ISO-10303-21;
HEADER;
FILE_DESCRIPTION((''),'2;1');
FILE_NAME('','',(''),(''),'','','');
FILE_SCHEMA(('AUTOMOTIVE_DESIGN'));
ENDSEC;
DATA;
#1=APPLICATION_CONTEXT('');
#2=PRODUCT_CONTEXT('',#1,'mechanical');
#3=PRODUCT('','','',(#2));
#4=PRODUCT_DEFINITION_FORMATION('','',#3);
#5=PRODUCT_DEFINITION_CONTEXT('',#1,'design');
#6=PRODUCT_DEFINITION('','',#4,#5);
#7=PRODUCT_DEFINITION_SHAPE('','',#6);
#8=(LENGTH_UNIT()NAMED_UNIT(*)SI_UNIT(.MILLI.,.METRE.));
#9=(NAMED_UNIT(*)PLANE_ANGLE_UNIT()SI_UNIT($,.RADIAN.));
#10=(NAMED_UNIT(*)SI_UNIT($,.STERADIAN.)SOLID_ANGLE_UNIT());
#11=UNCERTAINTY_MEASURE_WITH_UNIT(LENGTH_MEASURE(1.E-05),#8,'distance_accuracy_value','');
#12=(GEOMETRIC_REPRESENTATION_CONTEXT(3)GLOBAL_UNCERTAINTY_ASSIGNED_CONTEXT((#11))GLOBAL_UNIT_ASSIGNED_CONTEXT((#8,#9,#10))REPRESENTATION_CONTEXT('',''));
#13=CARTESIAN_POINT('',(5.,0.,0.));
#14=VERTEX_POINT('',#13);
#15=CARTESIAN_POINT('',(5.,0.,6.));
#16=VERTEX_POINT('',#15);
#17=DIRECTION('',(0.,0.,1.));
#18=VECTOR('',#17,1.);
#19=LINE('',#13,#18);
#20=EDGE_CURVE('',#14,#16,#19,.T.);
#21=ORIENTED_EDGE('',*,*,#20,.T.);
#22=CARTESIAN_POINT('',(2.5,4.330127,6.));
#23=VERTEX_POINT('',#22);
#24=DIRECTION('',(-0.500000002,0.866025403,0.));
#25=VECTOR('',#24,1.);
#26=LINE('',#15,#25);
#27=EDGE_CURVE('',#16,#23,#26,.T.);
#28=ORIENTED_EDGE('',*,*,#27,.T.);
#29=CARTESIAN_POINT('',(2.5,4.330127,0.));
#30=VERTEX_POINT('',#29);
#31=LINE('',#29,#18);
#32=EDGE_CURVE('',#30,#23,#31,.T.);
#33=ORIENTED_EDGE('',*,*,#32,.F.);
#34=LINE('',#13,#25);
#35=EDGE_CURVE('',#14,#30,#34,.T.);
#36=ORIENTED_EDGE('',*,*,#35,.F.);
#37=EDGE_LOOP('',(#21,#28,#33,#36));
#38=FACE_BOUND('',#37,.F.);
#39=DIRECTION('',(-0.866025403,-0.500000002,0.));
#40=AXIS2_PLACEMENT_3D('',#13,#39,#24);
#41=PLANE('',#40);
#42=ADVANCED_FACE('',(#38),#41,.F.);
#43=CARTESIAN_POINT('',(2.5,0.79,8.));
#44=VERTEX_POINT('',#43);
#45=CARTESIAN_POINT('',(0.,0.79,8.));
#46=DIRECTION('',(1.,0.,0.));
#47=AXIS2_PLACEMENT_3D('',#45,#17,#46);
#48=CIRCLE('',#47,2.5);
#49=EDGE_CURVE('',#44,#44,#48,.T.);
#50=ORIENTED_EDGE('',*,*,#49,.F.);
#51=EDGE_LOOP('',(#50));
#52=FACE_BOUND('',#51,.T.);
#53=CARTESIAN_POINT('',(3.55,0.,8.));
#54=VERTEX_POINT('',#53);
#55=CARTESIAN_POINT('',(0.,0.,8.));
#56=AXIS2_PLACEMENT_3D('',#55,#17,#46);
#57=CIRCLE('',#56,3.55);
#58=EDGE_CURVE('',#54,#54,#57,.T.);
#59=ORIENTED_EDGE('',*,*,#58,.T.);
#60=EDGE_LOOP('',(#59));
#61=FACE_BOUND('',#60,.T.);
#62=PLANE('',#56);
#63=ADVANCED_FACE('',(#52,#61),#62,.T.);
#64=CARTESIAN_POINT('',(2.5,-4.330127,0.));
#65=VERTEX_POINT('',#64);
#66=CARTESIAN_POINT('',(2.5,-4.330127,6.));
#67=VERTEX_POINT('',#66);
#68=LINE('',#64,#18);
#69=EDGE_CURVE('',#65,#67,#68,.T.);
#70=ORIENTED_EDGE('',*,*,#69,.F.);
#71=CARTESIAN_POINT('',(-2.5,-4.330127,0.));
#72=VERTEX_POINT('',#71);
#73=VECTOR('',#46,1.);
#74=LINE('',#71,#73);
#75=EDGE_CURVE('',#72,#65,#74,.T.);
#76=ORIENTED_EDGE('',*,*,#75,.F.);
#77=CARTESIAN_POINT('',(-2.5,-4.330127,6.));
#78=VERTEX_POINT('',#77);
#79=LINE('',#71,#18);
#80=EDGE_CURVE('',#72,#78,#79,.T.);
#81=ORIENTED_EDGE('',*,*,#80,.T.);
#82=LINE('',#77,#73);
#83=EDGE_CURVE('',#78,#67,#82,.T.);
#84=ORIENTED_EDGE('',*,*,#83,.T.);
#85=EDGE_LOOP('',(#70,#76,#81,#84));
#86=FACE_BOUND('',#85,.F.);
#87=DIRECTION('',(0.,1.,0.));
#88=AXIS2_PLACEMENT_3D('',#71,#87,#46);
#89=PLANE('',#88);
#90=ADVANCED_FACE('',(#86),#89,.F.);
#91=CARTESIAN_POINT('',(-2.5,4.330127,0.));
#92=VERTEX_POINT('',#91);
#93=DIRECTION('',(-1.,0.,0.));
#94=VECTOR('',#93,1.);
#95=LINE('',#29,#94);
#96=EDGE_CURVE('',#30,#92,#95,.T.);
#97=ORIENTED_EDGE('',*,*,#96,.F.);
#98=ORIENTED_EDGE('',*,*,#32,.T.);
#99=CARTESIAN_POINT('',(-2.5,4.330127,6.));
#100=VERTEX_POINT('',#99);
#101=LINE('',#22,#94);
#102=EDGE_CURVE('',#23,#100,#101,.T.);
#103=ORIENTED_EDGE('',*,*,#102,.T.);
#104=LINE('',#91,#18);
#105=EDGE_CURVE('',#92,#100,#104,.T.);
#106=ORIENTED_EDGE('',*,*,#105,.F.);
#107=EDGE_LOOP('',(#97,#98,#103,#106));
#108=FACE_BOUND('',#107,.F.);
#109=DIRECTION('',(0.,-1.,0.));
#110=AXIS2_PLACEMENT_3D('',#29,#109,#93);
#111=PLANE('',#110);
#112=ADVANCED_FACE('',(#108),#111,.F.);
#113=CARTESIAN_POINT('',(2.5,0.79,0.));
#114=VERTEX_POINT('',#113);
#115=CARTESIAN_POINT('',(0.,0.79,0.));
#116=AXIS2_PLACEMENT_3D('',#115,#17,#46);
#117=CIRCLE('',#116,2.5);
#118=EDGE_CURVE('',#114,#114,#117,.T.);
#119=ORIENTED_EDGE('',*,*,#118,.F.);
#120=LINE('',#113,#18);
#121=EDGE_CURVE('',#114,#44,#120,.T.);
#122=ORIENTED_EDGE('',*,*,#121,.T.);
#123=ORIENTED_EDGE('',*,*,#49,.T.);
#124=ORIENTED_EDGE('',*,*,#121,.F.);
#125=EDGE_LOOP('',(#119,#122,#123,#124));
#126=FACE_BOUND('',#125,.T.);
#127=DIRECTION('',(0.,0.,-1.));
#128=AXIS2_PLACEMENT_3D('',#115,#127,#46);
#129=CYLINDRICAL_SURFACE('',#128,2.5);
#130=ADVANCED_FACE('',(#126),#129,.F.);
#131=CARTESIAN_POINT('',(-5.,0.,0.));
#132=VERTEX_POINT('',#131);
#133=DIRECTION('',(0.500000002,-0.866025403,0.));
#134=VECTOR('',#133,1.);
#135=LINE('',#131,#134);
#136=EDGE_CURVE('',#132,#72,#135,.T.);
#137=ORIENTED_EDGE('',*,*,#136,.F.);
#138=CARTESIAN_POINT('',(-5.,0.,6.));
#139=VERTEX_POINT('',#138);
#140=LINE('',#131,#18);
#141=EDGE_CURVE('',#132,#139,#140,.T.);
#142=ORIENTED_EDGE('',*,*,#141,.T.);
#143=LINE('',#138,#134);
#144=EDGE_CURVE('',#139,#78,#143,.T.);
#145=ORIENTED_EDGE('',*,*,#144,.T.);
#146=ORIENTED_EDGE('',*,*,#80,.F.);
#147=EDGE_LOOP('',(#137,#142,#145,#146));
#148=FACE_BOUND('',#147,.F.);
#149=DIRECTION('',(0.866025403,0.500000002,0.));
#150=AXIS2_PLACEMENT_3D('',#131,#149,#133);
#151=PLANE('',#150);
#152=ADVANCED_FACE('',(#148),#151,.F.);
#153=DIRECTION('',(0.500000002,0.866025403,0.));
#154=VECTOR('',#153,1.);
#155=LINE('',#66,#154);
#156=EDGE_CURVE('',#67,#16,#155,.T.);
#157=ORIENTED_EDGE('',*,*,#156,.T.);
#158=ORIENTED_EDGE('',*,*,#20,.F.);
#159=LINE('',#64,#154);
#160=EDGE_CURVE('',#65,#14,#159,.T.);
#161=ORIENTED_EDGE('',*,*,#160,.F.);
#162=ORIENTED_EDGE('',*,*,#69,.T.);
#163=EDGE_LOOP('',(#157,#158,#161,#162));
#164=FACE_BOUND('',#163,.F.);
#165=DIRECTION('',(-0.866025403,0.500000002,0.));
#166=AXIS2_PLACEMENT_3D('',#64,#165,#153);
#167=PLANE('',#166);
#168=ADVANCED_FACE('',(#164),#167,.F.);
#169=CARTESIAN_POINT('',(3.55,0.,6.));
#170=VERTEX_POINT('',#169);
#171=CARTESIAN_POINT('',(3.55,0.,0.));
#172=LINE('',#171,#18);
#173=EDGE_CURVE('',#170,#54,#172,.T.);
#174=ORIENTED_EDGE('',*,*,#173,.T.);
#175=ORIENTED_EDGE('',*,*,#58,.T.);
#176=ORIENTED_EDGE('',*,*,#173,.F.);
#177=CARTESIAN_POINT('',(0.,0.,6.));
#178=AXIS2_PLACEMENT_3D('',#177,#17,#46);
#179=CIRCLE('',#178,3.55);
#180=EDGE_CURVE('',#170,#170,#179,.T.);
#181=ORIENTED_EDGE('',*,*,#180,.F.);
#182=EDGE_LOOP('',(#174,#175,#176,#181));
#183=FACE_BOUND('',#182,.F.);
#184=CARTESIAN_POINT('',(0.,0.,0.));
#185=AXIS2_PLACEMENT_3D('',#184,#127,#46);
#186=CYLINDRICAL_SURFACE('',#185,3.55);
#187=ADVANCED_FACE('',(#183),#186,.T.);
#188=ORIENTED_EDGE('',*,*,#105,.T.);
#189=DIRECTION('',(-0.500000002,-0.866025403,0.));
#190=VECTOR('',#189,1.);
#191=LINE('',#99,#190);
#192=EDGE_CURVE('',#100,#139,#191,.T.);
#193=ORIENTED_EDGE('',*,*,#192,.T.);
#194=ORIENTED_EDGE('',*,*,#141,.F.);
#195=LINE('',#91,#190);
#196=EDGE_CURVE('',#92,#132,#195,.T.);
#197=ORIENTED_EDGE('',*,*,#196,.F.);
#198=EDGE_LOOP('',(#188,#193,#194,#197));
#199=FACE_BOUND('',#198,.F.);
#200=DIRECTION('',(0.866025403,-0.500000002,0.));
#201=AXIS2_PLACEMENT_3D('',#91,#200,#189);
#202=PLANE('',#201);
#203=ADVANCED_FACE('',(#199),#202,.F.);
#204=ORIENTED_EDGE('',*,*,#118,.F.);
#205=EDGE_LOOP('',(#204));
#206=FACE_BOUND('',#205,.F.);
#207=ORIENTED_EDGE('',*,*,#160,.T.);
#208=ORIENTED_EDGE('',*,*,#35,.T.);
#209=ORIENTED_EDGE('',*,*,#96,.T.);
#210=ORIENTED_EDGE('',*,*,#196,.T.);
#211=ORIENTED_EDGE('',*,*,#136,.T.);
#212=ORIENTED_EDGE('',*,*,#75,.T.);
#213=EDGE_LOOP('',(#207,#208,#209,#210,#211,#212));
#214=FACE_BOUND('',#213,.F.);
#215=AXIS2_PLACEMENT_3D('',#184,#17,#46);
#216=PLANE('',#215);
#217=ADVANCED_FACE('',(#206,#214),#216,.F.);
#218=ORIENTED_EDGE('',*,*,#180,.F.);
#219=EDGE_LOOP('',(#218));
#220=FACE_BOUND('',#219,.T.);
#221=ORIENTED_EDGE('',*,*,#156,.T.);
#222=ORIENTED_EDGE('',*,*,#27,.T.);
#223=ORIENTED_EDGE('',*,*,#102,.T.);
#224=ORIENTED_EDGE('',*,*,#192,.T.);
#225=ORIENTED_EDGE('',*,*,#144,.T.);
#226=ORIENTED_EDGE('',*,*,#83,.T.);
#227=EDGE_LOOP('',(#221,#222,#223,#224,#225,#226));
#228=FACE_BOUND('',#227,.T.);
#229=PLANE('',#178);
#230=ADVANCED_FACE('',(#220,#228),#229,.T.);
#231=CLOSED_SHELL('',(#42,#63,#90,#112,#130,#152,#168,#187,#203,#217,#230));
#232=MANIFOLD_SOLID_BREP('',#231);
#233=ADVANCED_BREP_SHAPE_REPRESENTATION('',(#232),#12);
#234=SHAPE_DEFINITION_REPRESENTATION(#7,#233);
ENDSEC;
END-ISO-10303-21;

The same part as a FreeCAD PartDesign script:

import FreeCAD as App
import Part
import Sketcher

V = App.Vector
Q = App.Units.Quantity


def add_polygon(sketch, points):
    """Adds a closed chain of lines whose ends are joined by coincident constraints."""
    first, n = sketch.GeometryCount, len(points)
    for a, b in zip(points, points[1:] + points[:1]):
        sketch.addGeometry(Part.LineSegment(App.Vector(*a, 0), App.Vector(*b, 0)), False)
    for i in range(n):
        sketch.addConstraint(Sketcher.Constraint("Coincident", first + i, 2, first + (i + 1) % n, 1))

doc = App.newDocument("Part")
params = doc.addObject("Spreadsheet::Sheet", "Params")
for row, (alias, value) in enumerate([
    ("sketch1_diameter", "7.1 mm"),
    ("sketch1_width", "5 mm"),
    ("sketch1_length", "5 mm"),
    ("pad1_length", "6 mm"),
    ("sketch2_diameter", "5 mm"),
    ("sketch2_diameter2", "7.1 mm"),
    ("pad2_length", "8 mm"),
], start=1):
    params.set(f"A{row}", alias)
    params.set(f"B{row}", "=" + value)
    params.setAlias(f"B{row}", alias)

body = doc.addObject("PartDesign::Body", "Body")

sketch1 = doc.addObject("Sketcher::SketchObject", "Sketch")
body.addObject(sketch1)
sketch1.AttachmentSupport = (doc.XY_Plane, [""])
sketch1.MapMode = "FlatFace"
add_polygon(sketch1, [(2.5, 4.3), (-2.5, 4.3), (-5, 0), (-2.5, -4.3), (2.5, -4.3), (5, 0)])
sketch1.addGeometry(Part.Circle(V(0, 0, 0), V(0, 0, 1), 3.5), False)
sketch1.addConstraint(Sketcher.Constraint("Horizontal", 0))
sketch1.addConstraint(Sketcher.Constraint("Horizontal", 3))
sketch1.addConstraint(Sketcher.Constraint("Coincident", 6, 3, -1, 1))
sketch1.addConstraint(Sketcher.Constraint("Symmetric", 0, 2, 3, 2, -1, 1))
sketch1.addConstraint(Sketcher.Constraint("Symmetric", 1, 2, 4, 2, -1, 1))
sketch1.addConstraint(Sketcher.Constraint("PointOnObject", 1, 2, -1))
sketch1.addConstraint(Sketcher.Constraint("Parallel", 2, 5))
sketch1.addConstraint(Sketcher.Constraint("Vertical", 0, 2, 2, 2))
sketch1.addConstraint(Sketcher.Constraint("Diameter", 6, 7.1))
sketch1.addConstraint(Sketcher.Constraint("DistanceX", 0, 2, 0, 1, 5.0))
sketch1.addConstraint(Sketcher.Constraint("Angle", 1, Q("-120 deg")))
sketch1.addConstraint(Sketcher.Constraint("Distance", 1, 5.0))
sketch1.setExpression("Constraints[14]", "Params.sketch1_diameter")
sketch1.setExpression("Constraints[15]", "Params.sketch1_width")
sketch1.setExpression("Constraints[17]", "Params.sketch1_length")
pad1 = doc.addObject("PartDesign::Pad", "Pad")
body.addObject(pad1)
pad1.Profile = sketch1
pad1.setExpression("Length", "Params.pad1_length")

sketch2 = doc.addObject("Sketcher::SketchObject", "Sketch001")
body.addObject(sketch2)
sketch2.AttachmentSupport = (doc.XY_Plane, [""])
sketch2.MapMode = "FlatFace"
sketch2.addGeometry(Part.Circle(V(0, 0, 0), V(0, 0, 1), 3.5), False)
sketch2.addGeometry(Part.Circle(V(0, 0.8, 0), V(0, 0, 1), 2.5), False)
sketch2.addConstraint(Sketcher.Constraint("Coincident", 0, 3, -1, 1))
sketch2.addConstraint(Sketcher.Constraint("PointOnObject", 1, 3, -2))
sketch2.addConstraint(Sketcher.Constraint("Diameter", 1, 5.0))
sketch2.addConstraint(Sketcher.Constraint("Diameter", 0, 7.1))
sketch2.addConstraint(Sketcher.Constraint("DistanceY", -1, 1, 1, 3, 0.79))
sketch2.setExpression("Constraints[2]", "Params.sketch2_diameter")
sketch2.setExpression("Constraints[3]", "Params.sketch2_diameter2")
pad2 = doc.addObject("PartDesign::Pad", "Pad001")
body.addObject(pad2)
pad2.Profile = sketch2
pad2.setExpression("Length", "Params.pad2_length")

doc.recompute()
